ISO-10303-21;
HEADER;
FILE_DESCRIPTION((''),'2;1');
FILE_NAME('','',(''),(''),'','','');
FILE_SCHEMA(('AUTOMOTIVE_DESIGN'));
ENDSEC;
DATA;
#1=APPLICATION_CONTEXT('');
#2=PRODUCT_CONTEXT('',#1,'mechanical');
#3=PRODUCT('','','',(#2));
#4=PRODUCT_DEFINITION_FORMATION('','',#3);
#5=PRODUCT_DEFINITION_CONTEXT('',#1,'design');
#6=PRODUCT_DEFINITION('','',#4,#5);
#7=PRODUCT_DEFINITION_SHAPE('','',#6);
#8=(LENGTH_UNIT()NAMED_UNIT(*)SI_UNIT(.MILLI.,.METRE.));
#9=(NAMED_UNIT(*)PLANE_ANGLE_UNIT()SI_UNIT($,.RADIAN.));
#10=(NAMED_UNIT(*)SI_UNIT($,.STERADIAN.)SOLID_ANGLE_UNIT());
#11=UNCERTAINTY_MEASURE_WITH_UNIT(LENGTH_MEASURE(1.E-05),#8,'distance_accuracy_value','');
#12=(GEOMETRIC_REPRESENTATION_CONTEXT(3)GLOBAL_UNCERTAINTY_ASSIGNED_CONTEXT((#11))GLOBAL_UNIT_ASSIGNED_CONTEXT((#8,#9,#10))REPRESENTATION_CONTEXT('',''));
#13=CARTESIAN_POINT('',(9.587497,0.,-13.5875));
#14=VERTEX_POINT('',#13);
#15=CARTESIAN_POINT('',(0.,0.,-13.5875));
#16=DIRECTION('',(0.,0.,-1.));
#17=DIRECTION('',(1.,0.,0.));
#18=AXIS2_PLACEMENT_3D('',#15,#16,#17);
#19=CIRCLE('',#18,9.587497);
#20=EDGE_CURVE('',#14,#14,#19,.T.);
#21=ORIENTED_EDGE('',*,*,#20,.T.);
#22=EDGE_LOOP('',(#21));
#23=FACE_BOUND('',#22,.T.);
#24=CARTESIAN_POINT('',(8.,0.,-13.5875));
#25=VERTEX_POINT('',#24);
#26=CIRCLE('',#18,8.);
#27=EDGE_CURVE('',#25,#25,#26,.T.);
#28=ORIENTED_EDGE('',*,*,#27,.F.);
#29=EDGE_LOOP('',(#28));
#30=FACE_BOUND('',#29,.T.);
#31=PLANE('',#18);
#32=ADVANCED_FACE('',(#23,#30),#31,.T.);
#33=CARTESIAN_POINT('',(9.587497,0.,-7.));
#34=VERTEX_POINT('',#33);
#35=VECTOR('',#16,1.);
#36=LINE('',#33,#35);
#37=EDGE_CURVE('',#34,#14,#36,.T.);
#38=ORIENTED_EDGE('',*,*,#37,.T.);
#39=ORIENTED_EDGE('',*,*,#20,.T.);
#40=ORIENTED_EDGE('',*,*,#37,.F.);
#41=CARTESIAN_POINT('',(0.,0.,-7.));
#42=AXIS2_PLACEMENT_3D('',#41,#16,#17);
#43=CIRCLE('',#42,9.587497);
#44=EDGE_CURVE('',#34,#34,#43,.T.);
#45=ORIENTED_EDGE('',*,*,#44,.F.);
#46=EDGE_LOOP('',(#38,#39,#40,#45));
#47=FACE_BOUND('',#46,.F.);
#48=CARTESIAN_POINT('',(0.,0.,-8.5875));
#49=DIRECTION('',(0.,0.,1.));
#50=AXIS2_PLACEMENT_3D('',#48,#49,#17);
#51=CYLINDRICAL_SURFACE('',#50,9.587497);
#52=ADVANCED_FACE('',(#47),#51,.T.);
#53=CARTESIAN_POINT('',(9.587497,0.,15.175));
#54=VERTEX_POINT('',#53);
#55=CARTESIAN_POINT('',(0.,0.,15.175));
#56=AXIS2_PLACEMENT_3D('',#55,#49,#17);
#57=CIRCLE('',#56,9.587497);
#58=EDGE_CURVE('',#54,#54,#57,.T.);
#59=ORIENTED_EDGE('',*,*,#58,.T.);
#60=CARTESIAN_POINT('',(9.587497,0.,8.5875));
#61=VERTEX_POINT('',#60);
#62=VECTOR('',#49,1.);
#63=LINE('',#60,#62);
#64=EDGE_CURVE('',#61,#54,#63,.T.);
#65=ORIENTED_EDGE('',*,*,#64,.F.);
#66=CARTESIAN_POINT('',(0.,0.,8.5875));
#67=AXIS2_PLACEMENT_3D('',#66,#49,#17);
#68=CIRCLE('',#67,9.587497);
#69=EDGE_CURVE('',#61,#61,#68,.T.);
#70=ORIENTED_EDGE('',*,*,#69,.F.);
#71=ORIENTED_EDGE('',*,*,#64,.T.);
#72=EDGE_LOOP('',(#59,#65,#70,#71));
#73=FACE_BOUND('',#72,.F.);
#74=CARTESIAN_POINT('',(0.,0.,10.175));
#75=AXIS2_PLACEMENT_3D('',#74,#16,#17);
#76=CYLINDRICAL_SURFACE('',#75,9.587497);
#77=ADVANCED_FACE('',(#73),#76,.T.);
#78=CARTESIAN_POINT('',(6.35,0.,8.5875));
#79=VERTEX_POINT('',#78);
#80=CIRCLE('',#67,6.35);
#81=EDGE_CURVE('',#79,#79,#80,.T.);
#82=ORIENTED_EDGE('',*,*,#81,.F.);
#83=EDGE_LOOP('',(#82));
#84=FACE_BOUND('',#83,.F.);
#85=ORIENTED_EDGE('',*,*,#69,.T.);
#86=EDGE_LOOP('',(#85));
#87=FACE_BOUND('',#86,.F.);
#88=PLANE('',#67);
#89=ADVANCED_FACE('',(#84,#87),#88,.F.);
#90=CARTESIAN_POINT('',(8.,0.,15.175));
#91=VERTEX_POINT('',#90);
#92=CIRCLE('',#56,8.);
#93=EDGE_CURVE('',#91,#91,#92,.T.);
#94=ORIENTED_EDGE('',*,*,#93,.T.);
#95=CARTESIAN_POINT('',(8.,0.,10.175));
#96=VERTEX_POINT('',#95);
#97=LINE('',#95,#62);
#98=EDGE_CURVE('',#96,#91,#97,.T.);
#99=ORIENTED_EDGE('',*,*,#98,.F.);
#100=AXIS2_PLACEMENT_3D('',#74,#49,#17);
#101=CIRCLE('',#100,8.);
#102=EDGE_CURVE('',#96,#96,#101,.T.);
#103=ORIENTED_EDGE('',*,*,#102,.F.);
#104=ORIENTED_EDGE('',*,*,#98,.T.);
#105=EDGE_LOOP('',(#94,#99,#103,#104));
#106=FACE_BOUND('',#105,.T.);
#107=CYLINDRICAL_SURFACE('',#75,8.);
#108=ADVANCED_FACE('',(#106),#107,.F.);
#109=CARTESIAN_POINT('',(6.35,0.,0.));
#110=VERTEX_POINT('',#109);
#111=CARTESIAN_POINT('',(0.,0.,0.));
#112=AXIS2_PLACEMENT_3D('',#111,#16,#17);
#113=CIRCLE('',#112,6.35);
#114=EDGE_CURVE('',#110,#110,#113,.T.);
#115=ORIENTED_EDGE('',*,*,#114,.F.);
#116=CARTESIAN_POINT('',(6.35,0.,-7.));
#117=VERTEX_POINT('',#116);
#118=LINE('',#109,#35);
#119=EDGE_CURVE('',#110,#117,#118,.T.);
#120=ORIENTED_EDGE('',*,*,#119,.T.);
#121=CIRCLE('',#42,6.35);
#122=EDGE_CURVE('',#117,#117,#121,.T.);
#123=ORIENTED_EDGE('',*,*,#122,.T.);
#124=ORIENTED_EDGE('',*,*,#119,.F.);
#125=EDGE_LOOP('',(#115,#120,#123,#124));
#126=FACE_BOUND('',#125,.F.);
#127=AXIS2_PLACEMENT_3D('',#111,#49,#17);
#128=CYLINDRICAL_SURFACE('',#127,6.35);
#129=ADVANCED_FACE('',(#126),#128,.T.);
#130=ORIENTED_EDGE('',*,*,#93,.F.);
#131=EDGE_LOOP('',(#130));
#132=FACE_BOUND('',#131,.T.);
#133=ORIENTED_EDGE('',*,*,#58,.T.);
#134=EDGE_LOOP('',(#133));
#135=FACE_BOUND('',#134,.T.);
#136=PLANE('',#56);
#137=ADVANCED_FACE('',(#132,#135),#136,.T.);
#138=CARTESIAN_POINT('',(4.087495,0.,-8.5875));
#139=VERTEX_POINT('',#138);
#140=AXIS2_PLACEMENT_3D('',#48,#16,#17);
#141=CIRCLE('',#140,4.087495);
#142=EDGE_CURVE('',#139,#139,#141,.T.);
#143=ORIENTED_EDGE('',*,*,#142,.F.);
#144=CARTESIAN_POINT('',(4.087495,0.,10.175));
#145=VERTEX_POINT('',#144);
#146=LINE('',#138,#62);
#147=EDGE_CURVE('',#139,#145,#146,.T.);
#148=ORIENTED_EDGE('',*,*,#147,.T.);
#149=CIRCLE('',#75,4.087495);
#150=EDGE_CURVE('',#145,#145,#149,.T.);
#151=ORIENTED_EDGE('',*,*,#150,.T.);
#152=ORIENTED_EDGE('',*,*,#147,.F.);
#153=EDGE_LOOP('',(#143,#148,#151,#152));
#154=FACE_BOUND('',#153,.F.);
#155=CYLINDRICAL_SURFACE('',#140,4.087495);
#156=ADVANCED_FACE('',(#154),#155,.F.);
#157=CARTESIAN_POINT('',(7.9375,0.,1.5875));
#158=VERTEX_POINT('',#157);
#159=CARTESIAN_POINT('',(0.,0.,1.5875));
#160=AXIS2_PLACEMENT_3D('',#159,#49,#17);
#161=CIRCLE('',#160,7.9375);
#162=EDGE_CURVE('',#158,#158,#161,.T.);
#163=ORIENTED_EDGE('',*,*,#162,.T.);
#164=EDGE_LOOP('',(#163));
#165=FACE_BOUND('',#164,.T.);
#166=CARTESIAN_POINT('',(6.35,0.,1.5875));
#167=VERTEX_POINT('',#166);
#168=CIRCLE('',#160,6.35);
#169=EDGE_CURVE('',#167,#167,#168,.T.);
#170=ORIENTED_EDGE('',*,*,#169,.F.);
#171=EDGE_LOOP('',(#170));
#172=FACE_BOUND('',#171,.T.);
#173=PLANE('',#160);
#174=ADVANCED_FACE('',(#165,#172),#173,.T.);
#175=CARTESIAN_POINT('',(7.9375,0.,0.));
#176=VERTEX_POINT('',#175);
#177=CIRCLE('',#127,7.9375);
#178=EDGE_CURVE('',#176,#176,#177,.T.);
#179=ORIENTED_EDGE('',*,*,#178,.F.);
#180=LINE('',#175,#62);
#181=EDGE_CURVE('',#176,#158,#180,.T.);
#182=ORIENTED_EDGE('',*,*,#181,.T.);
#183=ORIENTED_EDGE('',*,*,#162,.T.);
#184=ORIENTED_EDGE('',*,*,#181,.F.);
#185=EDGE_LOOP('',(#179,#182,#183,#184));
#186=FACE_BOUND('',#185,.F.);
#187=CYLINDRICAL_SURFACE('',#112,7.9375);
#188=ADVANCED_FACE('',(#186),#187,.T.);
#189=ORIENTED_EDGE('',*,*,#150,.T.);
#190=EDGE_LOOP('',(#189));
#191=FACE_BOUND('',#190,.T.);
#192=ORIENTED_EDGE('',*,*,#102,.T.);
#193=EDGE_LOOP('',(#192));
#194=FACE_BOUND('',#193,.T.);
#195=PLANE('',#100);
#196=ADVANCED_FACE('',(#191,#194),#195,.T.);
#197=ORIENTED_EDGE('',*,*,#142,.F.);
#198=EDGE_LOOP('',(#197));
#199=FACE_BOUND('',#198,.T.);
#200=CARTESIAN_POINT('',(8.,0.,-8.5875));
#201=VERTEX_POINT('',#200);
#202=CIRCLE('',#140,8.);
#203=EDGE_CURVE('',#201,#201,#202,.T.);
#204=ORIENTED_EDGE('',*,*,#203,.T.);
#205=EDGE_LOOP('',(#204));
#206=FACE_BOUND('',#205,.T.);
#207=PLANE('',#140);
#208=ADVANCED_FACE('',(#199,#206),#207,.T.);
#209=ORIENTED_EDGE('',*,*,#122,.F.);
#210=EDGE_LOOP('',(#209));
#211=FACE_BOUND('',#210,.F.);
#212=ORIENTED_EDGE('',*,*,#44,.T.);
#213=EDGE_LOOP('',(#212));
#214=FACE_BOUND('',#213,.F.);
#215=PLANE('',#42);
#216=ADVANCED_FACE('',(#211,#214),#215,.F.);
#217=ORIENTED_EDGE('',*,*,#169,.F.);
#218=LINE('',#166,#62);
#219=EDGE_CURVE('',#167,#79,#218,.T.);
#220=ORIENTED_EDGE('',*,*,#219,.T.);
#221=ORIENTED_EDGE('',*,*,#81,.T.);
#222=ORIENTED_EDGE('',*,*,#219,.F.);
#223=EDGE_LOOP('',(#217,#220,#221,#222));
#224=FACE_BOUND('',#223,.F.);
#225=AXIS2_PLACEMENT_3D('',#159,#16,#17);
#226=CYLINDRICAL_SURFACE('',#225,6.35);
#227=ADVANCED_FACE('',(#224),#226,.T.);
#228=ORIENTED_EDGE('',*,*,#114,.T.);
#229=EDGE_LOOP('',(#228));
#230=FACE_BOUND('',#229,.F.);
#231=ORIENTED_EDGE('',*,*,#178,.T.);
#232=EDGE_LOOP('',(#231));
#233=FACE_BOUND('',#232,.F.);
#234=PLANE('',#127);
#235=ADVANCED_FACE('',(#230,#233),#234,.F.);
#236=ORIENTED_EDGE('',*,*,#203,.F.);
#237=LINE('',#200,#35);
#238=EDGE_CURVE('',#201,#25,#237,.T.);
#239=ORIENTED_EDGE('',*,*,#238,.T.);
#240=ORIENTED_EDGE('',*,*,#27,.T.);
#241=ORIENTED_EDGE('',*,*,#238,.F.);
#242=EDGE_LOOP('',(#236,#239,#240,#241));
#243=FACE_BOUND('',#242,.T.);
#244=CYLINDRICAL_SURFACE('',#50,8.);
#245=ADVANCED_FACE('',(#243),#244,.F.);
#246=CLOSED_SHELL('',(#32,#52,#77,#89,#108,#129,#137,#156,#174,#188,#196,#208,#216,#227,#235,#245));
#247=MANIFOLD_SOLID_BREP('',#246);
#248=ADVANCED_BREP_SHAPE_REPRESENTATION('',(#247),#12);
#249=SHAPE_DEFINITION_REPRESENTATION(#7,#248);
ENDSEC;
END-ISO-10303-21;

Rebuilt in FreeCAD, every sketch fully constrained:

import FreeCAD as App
import Part
import Sketcher

doc = App.newDocument("Part")
body = doc.addObject("PartDesign::Body", "Body")

sketch1 = body.newObject("Sketcher::SketchObject", "Sketch")
sketch1.AttachmentSupport = (doc.getObject("XY_Plane"), [""])
sketch1.MapMode = "FlatFace"
sketch1.addGeometry(Part.Circle(App.Vector(0, 0, 0), App.Vector(0, 0, 1), 8), False)
sketch1.addConstraint([
    Sketcher.Constraint("Coincident", 0, 3, -1, 1),
    Sketcher.Constraint("Diameter", 0, 15.875),
])
pad1 = body.newObject("PartDesign::Pad", "Pad")
pad1.Profile = sketch1
pad1.Length = 1.5875

sketch2 = body.newObject("Sketcher::SketchObject", "Sketch001")
sketch2.AttachmentSupport = (doc.getObject("XY_Plane"), [""])
sketch2.MapMode = "FlatFace"
sketch2.AttachmentOffset = App.Placement(App.Vector(0, 0, 1.5875), App.Rotation())
sketch2.addGeometry(Part.Circle(App.Vector(0, 0, 0), App.Vector(0, 0, 1), 6), False)
sketch2.addConstraint([
    Sketcher.Constraint("Coincident", 0, 3, -1, 1),
    Sketcher.Constraint("Diameter", 0, 12.7),
])
pad2 = body.newObject("PartDesign::Pad", "Pad001")
pad2.Profile = sketch2
pad2.Length = 7

sketch3 = body.newObject("Sketcher::SketchObject", "Sketch002")
sketch3.AttachmentSupport = (doc.getObject("XY_Plane"), [""])
sketch3.MapMode = "FlatFace"
sketch3.addGeometry(Part.Circle(App.Vector(0, 0, 0), App.Vector(0, 0, 1), 6), False)
sketch3.addConstraint([
    Sketcher.Constraint("Coincident", 0, 3, -1, 1),
    Sketcher.Constraint("Diameter", 0, 12.7),
])
pad3 = body.newObject("PartDesign::Pad", "Pad002")
pad3.Profile = sketch3
pad3.Length = 7
pad3.Reversed = True

sketch4 = body.newObject("Sketcher::SketchObject", "Sketch003")
sketch4.AttachmentSupport = (doc.getObject("XY_Plane"), [""])
sketch4.MapMode = "FlatFace"
sketch4.AttachmentOffset = App.Placement(App.Vector(0, 0, 8.5875), App.Rotation())
sketch4.addGeometry(Part.Circle(App.Vector(0, 0, 0), App.Vector(0, 0, 1), 10), False)
sketch4.addConstraint([
    Sketcher.Constraint("Coincident", 0, 3, -1, 1),
    Sketcher.Constraint("Diameter", 0, 19.174994),
])
pad4 = body.newObject("PartDesign::Pad", "Pad003")
pad4.Profile = sketch4
pad4.Length = 1.5875

sketch5 = body.newObject("Sketcher::SketchObject", "Sketch004")
sketch5.AttachmentSupport = (doc.getObject("XY_Plane"), [""])
sketch5.MapMode = "FlatFace"
sketch5.AttachmentOffset = App.Placement(App.Vector(0, 0, -7), App.Rotation())
sketch5.addGeometry(Part.Circle(App.Vector(0, 0, 0), App.Vector(0, 0, 1), 10), False)
sketch5.addConstraint([
    Sketcher.Constraint("Coincident", 0, 3, -1, 1),
    Sketcher.Constraint("Diameter", 0, 19.174994),
])
pad5 = body.newObject("PartDesign::Pad", "Pad004")
pad5.Profile = sketch5
pad5.Length = 1.5875
pad5.Reversed = True

sketch6 = body.newObject("Sketcher::SketchObject", "Sketch005")
sketch6.AttachmentSupport = (doc.getObject("XY_Plane"), [""])
sketch6.MapMode = "FlatFace"
sketch6.AttachmentOffset = App.Placement(App.Vector(0, 0, -8.5875), App.Rotation())
sketch6.addGeometry([
    Part.Circle(App.Vector(0, 0, 0), App.Vector(0, 0, 1), 10),
    Part.Circle(App.Vector(0, 0, 0), App.Vector(0, 0, 1), 8),
], False)
sketch6.addConstraint([
    Sketcher.Constraint("Coincident", 0, 3, -1, 1),
    Sketcher.Constraint("Coincident", 1, 3, -1, 1),
    Sketcher.Constraint("Diameter", 1, 16.0),
    Sketcher.Constraint("Diameter", 0, 19.174994),
])
pad6 = body.newObject("PartDesign::Pad", "Pad005")
pad6.Profile = sketch6
pad6.Length = 5
pad6.Reversed = True

sketch7 = body.newObject("Sketcher::SketchObject", "Sketch006")
sketch7.AttachmentSupport = (doc.getObject("XY_Plane"), [""])
sketch7.MapMode = "FlatFace"
sketch7.AttachmentOffset = App.Placement(App.Vector(0, 0, 10.175), App.Rotation())
sketch7.addGeometry([
    Part.Circle(App.Vector(0, 0, 0), App.Vector(0, 0, 1), 10),
    Part.Circle(App.Vector(0, 0, 0), App.Vector(0, 0, 1), 8),
], False)
sketch7.addConstraint([
    Sketcher.Constraint("Coincident", 0, 3, -1, 1),
    Sketcher.Constraint("Coincident", 1, 3, -1, 1),
    Sketcher.Constraint("Diameter", 1, 16.0),
    Sketcher.Constraint("Diameter", 0, 19.174994),
])
pad7 = body.newObject("PartDesign::Pad", "Pad006")
pad7.Profile = sketch7
pad7.Length = 5

sketch8 = body.newObject("Sketcher::SketchObject", "Sketch007")
sketch8.AttachmentSupport = (doc.getObject("XY_Plane"), [""])
sketch8.MapMode = "FlatFace"
sketch8.AttachmentOffset = App.Placement(App.Vector(0, 0, -8.5875), App.Rotation())
sketch8.addGeometry(Part.Circle(App.Vector(0, 0, 0), App.Vector(0, 0, 1), 4.1), False)
sketch8.addConstraint([
    Sketcher.Constraint("Coincident", 0, 3, -1, 1),
    Sketcher.Constraint("Diameter", 0, 8.17499),
])
pocket1 = body.newObject("PartDesign::Pocket", "Pocket")
pocket1.Profile = sketch8
pocket1.Type = "ThroughAll"
pocket1.Reversed = True

doc.recompute()
